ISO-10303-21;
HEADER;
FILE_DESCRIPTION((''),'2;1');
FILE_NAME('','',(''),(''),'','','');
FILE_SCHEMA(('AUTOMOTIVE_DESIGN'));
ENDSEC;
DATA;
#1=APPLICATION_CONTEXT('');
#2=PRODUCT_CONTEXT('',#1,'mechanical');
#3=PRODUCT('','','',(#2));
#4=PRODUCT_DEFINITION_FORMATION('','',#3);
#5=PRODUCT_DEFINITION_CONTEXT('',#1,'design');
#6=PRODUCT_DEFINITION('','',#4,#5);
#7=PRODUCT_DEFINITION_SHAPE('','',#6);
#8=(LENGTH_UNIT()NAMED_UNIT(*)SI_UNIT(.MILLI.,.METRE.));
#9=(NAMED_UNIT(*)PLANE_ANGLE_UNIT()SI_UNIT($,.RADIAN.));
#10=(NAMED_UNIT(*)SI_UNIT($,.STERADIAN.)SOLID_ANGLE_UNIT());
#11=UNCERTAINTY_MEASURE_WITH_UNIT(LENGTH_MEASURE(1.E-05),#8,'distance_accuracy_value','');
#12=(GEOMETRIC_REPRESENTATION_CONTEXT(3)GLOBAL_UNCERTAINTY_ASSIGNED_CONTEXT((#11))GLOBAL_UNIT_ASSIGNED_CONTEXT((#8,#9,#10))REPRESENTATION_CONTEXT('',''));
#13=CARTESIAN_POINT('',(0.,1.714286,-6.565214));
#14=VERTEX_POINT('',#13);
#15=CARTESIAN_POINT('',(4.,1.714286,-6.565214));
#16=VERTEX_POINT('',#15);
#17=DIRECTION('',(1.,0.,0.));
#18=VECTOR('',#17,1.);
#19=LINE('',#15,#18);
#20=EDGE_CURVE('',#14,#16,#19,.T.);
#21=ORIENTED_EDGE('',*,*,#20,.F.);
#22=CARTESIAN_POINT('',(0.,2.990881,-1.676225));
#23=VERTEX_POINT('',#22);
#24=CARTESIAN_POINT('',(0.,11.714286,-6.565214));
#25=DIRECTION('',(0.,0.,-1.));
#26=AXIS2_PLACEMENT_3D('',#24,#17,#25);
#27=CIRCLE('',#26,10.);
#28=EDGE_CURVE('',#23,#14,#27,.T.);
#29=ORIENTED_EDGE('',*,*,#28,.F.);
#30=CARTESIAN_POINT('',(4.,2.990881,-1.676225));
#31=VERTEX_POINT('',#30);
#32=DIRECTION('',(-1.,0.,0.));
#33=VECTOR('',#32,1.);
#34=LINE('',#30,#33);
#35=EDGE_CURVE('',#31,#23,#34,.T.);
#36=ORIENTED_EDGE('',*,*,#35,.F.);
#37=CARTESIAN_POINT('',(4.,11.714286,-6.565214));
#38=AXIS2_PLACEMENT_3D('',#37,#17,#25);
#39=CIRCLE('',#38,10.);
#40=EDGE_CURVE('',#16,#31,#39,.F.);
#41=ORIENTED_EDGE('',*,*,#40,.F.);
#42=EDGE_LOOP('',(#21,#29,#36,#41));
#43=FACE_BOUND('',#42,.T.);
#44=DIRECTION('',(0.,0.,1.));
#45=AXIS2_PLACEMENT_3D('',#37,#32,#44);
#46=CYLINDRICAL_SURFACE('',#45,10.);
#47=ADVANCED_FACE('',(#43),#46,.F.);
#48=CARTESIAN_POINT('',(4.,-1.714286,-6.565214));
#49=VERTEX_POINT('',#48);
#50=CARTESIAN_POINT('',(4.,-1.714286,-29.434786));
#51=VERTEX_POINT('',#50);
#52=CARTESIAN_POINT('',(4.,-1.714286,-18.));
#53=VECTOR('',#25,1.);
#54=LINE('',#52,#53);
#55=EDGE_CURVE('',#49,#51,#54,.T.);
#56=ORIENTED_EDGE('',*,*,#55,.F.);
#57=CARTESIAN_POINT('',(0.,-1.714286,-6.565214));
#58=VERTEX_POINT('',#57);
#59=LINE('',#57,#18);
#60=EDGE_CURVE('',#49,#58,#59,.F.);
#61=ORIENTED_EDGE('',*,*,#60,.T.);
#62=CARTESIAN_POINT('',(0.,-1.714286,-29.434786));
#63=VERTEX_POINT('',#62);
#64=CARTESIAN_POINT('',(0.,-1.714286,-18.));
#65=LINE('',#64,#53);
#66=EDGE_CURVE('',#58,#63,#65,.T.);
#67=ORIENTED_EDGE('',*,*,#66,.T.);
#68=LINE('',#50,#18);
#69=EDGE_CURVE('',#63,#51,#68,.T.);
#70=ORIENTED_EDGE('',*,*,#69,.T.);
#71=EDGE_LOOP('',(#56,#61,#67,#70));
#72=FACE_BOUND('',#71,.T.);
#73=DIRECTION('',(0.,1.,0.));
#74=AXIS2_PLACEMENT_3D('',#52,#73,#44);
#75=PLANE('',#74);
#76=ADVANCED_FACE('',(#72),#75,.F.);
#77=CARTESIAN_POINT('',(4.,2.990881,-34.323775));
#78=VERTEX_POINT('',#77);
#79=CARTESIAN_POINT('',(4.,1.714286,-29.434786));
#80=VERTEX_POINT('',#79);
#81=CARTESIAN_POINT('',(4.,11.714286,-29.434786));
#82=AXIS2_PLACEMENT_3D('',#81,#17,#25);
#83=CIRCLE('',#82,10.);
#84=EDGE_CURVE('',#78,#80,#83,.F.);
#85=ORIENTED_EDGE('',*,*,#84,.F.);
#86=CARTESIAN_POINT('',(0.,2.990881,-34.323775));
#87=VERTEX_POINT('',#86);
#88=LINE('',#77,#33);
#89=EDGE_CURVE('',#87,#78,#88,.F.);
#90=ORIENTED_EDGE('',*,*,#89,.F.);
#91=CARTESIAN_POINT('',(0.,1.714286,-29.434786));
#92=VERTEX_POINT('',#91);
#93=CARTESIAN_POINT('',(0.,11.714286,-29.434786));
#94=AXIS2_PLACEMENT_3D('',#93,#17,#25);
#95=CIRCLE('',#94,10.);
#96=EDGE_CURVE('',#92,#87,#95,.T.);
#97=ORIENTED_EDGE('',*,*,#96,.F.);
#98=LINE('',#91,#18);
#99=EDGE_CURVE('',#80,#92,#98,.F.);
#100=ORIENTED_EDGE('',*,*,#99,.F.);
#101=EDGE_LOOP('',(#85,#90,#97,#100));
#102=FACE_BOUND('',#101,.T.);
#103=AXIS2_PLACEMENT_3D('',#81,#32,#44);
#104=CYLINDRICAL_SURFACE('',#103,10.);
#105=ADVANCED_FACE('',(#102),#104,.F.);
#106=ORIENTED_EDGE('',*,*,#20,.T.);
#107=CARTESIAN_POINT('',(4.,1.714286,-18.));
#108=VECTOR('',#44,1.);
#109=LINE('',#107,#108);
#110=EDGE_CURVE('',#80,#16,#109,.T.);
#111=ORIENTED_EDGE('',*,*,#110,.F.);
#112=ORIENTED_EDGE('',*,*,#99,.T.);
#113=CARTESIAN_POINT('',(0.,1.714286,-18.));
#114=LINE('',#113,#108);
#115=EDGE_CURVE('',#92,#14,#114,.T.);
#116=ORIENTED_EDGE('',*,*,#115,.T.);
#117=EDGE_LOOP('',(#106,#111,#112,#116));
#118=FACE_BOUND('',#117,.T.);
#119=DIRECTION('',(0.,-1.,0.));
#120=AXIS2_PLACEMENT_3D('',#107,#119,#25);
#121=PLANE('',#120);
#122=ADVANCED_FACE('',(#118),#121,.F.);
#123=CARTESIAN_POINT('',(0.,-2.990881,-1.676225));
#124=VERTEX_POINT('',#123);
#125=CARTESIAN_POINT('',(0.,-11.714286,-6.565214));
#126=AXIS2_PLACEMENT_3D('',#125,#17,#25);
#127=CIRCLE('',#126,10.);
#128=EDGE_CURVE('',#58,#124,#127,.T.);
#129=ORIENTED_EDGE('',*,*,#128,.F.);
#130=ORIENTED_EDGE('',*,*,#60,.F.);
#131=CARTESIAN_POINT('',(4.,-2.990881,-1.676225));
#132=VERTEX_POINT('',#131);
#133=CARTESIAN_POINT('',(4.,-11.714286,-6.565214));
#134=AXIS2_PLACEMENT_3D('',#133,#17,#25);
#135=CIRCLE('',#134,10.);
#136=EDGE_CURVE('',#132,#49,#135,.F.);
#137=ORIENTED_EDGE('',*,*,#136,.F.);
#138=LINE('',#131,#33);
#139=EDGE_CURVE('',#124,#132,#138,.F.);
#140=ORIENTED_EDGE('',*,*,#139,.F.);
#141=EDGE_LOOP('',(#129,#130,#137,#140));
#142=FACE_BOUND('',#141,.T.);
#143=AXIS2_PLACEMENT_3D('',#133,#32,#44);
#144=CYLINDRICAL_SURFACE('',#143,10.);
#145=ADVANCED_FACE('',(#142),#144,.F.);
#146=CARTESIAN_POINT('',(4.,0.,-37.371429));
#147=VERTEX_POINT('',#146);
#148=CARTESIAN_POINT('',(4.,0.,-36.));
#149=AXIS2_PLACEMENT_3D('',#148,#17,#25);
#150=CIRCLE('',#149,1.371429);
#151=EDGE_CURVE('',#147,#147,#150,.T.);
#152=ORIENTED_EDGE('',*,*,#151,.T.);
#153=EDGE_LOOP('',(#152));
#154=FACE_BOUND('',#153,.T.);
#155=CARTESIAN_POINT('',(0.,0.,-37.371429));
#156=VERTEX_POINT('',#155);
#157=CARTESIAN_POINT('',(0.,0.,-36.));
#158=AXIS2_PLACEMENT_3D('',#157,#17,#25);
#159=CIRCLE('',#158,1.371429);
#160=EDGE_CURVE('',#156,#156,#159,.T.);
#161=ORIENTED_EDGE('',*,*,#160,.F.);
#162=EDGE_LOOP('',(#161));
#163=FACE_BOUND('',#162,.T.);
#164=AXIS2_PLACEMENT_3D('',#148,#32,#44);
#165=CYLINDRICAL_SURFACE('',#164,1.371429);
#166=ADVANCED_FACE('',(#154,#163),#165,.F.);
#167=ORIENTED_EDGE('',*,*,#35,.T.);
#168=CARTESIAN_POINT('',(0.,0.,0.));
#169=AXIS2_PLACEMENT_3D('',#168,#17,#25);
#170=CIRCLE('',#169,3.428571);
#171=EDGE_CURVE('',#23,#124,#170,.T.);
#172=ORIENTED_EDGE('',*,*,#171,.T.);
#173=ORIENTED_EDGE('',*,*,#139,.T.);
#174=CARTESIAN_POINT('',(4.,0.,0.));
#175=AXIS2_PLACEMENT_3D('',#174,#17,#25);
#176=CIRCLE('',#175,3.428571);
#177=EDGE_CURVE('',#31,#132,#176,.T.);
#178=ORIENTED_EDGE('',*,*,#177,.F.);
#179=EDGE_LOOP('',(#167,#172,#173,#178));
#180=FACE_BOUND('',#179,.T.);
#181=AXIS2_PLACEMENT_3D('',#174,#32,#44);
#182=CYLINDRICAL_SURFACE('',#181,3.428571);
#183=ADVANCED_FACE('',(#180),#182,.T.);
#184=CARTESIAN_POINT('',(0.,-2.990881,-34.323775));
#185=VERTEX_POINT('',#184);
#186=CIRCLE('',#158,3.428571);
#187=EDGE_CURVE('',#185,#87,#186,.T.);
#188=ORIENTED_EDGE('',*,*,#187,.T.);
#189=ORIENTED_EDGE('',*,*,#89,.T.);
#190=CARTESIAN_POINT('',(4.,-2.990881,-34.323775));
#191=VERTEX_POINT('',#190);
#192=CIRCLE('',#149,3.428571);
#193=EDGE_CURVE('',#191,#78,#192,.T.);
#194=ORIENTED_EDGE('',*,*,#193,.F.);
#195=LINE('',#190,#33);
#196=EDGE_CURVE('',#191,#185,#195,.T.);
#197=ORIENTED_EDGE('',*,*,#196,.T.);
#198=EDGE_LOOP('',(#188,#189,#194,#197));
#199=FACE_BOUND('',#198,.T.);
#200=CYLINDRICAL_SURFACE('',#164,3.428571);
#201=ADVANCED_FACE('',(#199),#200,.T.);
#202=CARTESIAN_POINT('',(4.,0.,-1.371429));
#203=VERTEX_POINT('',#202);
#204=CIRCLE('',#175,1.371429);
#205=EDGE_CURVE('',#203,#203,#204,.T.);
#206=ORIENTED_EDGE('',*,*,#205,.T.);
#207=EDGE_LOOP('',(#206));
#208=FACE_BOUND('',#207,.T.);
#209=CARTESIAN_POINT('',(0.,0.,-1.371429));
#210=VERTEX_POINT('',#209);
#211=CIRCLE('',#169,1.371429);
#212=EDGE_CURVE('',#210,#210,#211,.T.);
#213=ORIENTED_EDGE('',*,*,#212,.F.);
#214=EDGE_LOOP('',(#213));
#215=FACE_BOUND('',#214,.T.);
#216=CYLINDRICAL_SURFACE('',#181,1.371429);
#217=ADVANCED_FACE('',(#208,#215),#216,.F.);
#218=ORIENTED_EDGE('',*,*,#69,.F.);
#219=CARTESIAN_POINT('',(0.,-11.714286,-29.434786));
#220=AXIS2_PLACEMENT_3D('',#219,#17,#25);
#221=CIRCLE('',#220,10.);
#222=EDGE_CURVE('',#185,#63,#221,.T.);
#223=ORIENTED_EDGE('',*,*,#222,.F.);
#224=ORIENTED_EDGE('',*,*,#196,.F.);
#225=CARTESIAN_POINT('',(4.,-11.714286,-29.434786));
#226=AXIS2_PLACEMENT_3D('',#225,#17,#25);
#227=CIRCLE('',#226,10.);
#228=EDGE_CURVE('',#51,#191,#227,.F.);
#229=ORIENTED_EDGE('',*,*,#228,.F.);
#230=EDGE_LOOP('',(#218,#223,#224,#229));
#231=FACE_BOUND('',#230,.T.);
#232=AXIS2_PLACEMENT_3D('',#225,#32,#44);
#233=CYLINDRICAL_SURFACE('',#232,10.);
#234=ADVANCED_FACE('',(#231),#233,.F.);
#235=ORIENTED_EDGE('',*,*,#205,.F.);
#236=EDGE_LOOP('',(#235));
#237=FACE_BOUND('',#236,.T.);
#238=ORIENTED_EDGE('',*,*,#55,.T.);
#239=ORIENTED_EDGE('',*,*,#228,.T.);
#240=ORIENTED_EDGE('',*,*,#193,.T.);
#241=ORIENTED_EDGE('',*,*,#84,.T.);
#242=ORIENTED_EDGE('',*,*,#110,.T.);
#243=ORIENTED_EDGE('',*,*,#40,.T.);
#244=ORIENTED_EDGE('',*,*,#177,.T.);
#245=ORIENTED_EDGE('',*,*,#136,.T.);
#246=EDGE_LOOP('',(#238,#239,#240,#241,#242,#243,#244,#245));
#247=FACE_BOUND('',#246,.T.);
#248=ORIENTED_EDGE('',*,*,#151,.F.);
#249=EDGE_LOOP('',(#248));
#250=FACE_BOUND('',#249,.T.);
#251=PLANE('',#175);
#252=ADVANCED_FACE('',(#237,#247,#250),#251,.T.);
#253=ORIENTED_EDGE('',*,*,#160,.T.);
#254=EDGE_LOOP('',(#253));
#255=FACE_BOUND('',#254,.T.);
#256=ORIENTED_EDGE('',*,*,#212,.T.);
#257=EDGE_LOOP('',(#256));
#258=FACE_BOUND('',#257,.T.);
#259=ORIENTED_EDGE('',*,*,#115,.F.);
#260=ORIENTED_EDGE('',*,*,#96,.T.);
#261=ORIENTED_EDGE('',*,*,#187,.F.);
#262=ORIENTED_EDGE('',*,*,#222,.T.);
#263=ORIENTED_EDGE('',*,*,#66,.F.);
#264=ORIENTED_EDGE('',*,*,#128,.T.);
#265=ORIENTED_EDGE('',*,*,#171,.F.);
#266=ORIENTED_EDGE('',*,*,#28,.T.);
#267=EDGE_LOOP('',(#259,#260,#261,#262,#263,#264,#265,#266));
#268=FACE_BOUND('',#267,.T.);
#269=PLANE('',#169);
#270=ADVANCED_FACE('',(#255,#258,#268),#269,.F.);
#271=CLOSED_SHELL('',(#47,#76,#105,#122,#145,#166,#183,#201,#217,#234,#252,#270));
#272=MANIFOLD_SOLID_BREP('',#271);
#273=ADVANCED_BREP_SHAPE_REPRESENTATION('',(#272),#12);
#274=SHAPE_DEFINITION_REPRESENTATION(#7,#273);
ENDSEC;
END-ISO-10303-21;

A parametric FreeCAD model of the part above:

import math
import FreeCAD as App
import Part
import Sketcher
from FreeCAD import Vector
Q = App.Units.Quantity


def edges_at(feature, points):
    """Names of the edges that pass closest to the given points."""
    edges = feature.Shape.Edges
    near = lambda p: min(range(len(edges)), key=lambda i: edges[i].distToShape(Part.Vertex(*p))[0])
    return sorted({f"Edge{near(p) + 1}" for p in points})

doc = App.newDocument("Part")
body = doc.addObject("PartDesign::Body", "Body")

# Sketch on YZ plane
sketch1 = body.newObject("Sketcher::SketchObject", "Sketch")
sketch1.AttachmentSupport = (doc.getObject("YZ_Plane"), [""])
sketch1.MapMode = "FlatFace"
sketch1.addGeometry([
    Part.ArcOfCircle(Part.Circle(Vector(0, -36, 0), Vector(0, 0, 1), 3.4), math.radians(120), math.radians(420)),  # 0
    Part.LineSegment(Vector(1.7, -33, 0), Vector(1.7, -3, 0)),  # 1
    Part.ArcOfCircle(Part.Circle(Vector(0, 0, 0), Vector(0, 0, 1), 3.4), math.radians(-60), math.radians(240)),  # 2
    Part.LineSegment(Vector(-1.7, -3, 0), Vector(-1.7, -33, 0)),  # 3
    Part.Circle(Vector(0, -36, 0), Vector(0, 0, 1), 1.4),  # 4
    Part.Circle(Vector(0, 0, 0), Vector(0, 0, 1), 1.4),  # 5
], False)
sketch1.addConstraint([
    Sketcher.Constraint("Coincident", 0, 2, 1, 1),
    Sketcher.Constraint("Coincident", 1, 2, 2, 1),
    Sketcher.Constraint("Coincident", 2, 2, 3, 1),
    Sketcher.Constraint("Coincident", 3, 2, 0, 1),
    Sketcher.Constraint("Vertical", 1),
    Sketcher.Constraint("Vertical", 3),
    Sketcher.Constraint("Coincident", 2, 3, -1, 1),
    Sketcher.Constraint("Coincident", 5, 3, -1, 1),
    Sketcher.Constraint("Coincident", 4, 3, 0, 3),
    Sketcher.Constraint("Equal", 0, 2),
    Sketcher.Constraint("Equal", 4, 5),
    Sketcher.Constraint("Symmetric", 0, 2, 3, 2, -2),
    Sketcher.Constraint("DistanceY", 0, 3, -1, 1, Q("36 mm")),
    Sketcher.Constraint("Radius", 0, Q("3.428571 mm")),
    Sketcher.Constraint("Diameter", 4, Q("2.742857 mm")),
    Sketcher.Constraint("DistanceY", 1, 1, 1, 2, Q("30.06154 mm")),
])
pad1 = body.newObject("PartDesign::Pad", "Pad")
pad1.Profile = sketch1
pad1.Length = 4
doc.recompute()

fillet = body.newObject("PartDesign::Fillet", "Fillet")
fillet.Base = (pad1, edges_at(pad1, [
    (2, 1.714, -33.031),
    (2, -1.714, -33.031),
    (2, -1.714, -2.969),
    (2, 1.714, -2.969),
]))
fillet.Radius = 10

doc.recompute()
